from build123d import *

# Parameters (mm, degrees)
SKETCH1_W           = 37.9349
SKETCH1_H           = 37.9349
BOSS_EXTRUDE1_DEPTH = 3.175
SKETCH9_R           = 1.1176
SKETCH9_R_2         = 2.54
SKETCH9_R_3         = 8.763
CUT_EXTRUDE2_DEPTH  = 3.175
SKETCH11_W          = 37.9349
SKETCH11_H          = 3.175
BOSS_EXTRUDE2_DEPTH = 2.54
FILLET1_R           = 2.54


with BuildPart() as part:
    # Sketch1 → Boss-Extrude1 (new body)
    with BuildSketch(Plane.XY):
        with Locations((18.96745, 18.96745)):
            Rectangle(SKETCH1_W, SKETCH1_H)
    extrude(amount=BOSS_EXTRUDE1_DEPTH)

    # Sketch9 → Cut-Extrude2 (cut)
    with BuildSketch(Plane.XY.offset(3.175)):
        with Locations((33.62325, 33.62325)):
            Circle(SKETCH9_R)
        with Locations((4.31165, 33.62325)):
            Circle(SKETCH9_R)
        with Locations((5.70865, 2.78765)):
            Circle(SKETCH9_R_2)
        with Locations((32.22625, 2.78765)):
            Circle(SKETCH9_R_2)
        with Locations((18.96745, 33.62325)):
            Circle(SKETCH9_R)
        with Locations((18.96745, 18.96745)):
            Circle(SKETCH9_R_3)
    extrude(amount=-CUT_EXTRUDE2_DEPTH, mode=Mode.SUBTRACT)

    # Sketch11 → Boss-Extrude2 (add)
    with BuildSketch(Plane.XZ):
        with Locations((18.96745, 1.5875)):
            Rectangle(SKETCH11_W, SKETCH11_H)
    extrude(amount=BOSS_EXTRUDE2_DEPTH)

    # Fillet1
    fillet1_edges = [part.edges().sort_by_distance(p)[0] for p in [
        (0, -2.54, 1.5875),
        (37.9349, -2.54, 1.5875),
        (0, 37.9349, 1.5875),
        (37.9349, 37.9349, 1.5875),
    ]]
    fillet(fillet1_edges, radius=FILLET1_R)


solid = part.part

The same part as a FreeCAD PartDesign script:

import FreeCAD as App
import Part
import Sketcher
from FreeCAD import Vector
Q = App.Units.Quantity


def edges_at(feature, points):
    """Names of the edges that pass closest to the given points."""
    edges = feature.Shape.Edges
    near = lambda p: min(range(len(edges)), key=lambda i: edges[i].distToShape(Part.Vertex(*p))[0])
    return sorted({f"Edge{near(p) + 1}" for p in points})

doc = App.newDocument("Part")
body = doc.addObject("PartDesign::Body", "Body")

sketch1 = body.newObject("Sketcher::SketchObject", "Sketch")
sketch1.AttachmentSupport = (doc.getObject("XY_Plane"), [""])
sketch1.MapMode = "FlatFace"
sketch1.addGeometry(Part.LineSegment(Vector(0, 38, 0), Vector(0, 0, 0)), False)
sketch1.addGeometry(Part.LineSegment(Vector(0, 0, 0), Vector(38, 0, 0)), False)
sketch1.addGeometry(Part.LineSegment(Vector(38, 0, 0), Vector(38, 38, 0)), False)
sketch1.addGeometry(Part.LineSegment(Vector(38, 38, 0), Vector(0, 38, 0)), False)
sketch1.addConstraint(Sketcher.Constraint("Coincident", 0, 2, 1, 1))
sketch1.addConstraint(Sketcher.Constraint("Coincident", 1, 2, 2, 1))
sketch1.addConstraint(Sketcher.Constraint("Coincident", 2, 2, 3, 1))
sketch1.addConstraint(Sketcher.Constraint("Coincident", 3, 2, 0, 1))
sketch1.addConstraint(Sketcher.Constraint("Vertical", 0))
sketch1.addConstraint(Sketcher.Constraint("Horizontal", 1))
sketch1.addConstraint(Sketcher.Constraint("Vertical", 2))
sketch1.addConstraint(Sketcher.Constraint("Horizontal", 3))
sketch1.addConstraint(Sketcher.Constraint("Coincident", 0, 2, -1, 1))
sketch1.addConstraint(Sketcher.Constraint("Equal", 3, 0))
sketch1.addConstraint(Sketcher.Constraint("DistanceX", 1, 1, 1, 2, Q("1.4935 in")))
pad1 = body.newObject("PartDesign::Pad", "Pad")
pad1.Profile = sketch1
pad1.Length = Q("0.125 in")

sketch2 = body.newObject("Sketcher::SketchObject", "Sketch001")
sketch2.AttachmentSupport = (doc.getObject("XY_Plane"), [""])
sketch2.MapMode = "FlatFace"
sketch2.AttachmentOffset = App.Placement(Vector(0, 0, 0.125 * 25.4), App.Rotation())
sketch2.addGeometry(Part.Circle(Vector(33.6, 33.6, 0), Vector(0, 0, 1), 1.1), False)
sketch2.addGeometry(Part.Circle(Vector(4.3, 33.6, 0), Vector(0, 0, 1), 1.1), False)
sketch2.addGeometry(Part.Circle(Vector(5.7, 2.8, 0), Vector(0, 0, 1), 2.5), False)
sketch2.addGeometry(Part.Circle(Vector(32.2, 2.8, 0), Vector(0, 0, 1), 2.5), False)
sketch2.addGeometry(Part.Circle(Vector(19, 33.6, 0), Vector(0, 0, 1), 1.1), False)
sketch2.addGeometry(Part.Circle(Vector(19, 19, 0), Vector(0, 0, 1), 8.8), False)
sketch2.addConstraint(Sketcher.Constraint("Equal", 0, 1))
sketch2.addConstraint(Sketcher.Constraint("Equal", 2, 3))
sketch2.addConstraint(Sketcher.Constraint("Equal", 1, 4))
sketch2.addConstraint(Sketcher.Constraint("Horizontal", 0, 3, 1, 3))
sketch2.addConstraint(Sketcher.Constraint("Horizontal", 2, 3, 3, 3))
sketch2.addConstraint(Sketcher.Constraint("Horizontal", 1, 3, 4, 3))
sketch2.addConstraint(Sketcher.Constraint("Vertical", 4, 3, 5, 3))
sketch2.addConstraint(Sketcher.Constraint("Diameter", 2, Q("0.2 in")))
sketch2.addConstraint(Sketcher.Constraint("Diameter", 5, Q("0.69 in")))
sketch2.addConstraint(Sketcher.Constraint("Diameter", 0, Q("0.088 in")))
sketch2.addConstraint(Sketcher.Constraint("DistanceX", 1, 3, 0, 3, Q("1.154 in")))
sketch2.addConstraint(Sketcher.Constraint("DistanceX", 1, 3, 2, 3, Q("0.055 in")))
sketch2.addConstraint(Sketcher.Constraint("DistanceY", 2, 3, 1, 3, Q("1.214 in")))
sketch2.addConstraint(Sketcher.Constraint("DistanceX", 2, 3, 3, 3, Q("1.044 in")))
sketch2.addConstraint(Sketcher.Constraint("DistanceX", 4, 3, 0, 3, Q("0.577 in")))
sketch2.addConstraint(Sketcher.Constraint("DistanceY", 5, 3, 4, 3, Q("0.577 in")))
sketch2.addConstraint(Sketcher.Constraint("DistanceX", -1, 1, 0, 3, 33.62325))
sketch2.addConstraint(Sketcher.Constraint("DistanceY", -1, 1, 0, 3, 33.62325))
pocket1 = body.newObject("PartDesign::Pocket", "Pocket")
pocket1.Profile = sketch2
pocket1.Length = Q("0.125 in")

sketch3 = body.newObject("Sketcher::SketchObject", "Sketch002")
sketch3.AttachmentSupport = (doc.getObject("XZ_Plane"), [""])
sketch3.MapMode = "FlatFace"
sketch3.addGeometry(Part.LineSegment(Vector(0, 3.2, 0), Vector(0, 0, 0)), False)
sketch3.addGeometry(Part.LineSegment(Vector(0, 0, 0), Vector(37.9, 0, 0)), False)
sketch3.addGeometry(Part.LineSegment(Vector(37.9, 0, 0), Vector(37.9, 3.2, 0)), False)
sketch3.addGeometry(Part.LineSegment(Vector(37.9, 3.2, 0), Vector(0, 3.2, 0)), False)
sketch3.addConstraint(Sketcher.Constraint("Coincident", 0, 2, 1, 1))
sketch3.addConstraint(Sketcher.Constraint("Coincident", 1, 2, 2, 1))
sketch3.addConstraint(Sketcher.Constraint("Coincident", 2, 2, 3, 1))
sketch3.addConstraint(Sketcher.Constraint("Coincident", 3, 2, 0, 1))
sketch3.addConstraint(Sketcher.Constraint("Vertical", 0))
sketch3.addConstraint(Sketcher.Constraint("Horizontal", 1))
sketch3.addConstraint(Sketcher.Constraint("Vertical", 2))
sketch3.addConstraint(Sketcher.Constraint("Horizontal", 3))
sketch3.addConstraint(Sketcher.Constraint("Coincident", 0, 2, -1, 1))
sketch3.addConstraint(Sketcher.Constraint("DistanceY", 0, 2, 0, 1, Q("0.125 in")))
sketch3.addConstraint(Sketcher.Constraint("DistanceX", 1, 1, 1, 2, Q("1.4935 in")))
pad2 = body.newObject("PartDesign::Pad", "Pad001")
pad2.Profile = sketch3
pad2.Length = Q("0.1 in")
doc.recompute()

fillet = body.newObject("PartDesign::Fillet", "Fillet")
fillet.Base = (pad2, edges_at(pad2, [
    (0, -2.54, 1.587),
    (37.935, -2.54, 1.587),
    (0, 37.935, 1.587),
    (37.935, 37.935, 1.587),
]))
fillet.Radius = Q("0.1 in")

doc.recompute()
